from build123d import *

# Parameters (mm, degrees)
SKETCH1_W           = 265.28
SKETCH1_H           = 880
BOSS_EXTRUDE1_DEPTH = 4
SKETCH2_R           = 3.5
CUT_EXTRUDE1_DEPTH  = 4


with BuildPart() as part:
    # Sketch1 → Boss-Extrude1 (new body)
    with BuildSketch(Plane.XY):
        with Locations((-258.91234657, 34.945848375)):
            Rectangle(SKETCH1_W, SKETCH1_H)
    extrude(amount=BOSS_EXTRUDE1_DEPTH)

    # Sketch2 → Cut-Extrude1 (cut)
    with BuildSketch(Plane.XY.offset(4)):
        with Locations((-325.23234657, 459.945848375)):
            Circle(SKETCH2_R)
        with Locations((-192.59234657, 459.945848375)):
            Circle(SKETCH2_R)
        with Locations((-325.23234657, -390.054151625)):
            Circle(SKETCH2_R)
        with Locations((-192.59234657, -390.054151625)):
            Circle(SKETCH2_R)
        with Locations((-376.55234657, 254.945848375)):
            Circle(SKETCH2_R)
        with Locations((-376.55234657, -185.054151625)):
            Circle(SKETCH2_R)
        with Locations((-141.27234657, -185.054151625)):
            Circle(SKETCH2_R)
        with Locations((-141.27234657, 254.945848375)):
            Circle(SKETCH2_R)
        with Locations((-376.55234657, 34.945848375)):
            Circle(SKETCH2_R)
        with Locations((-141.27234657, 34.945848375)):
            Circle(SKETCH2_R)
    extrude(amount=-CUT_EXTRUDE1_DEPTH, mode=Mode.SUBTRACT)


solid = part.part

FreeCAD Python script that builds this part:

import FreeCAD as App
import Part
import Sketcher


def add_polygon(sketch, points):
    """Adds a closed chain of lines whose ends are joined by coincident constraints."""
    first, n = sketch.GeometryCount, len(points)
    for a, b in zip(points, points[1:] + points[:1]):
        sketch.addGeometry(Part.LineSegment(App.Vector(*a, 0), App.Vector(*b, 0)), False)
    for i in range(n):
        sketch.addConstraint(Sketcher.Constraint("Coincident", first + i, 2, first + (i + 1) % n, 1))

doc = App.newDocument("Part")
params = doc.addObject("Spreadsheet::Sheet", "Params")
for row, (alias, value) in enumerate([
    ("sketch1_height", "880 mm"),
    ("sketch1_width", "265.28 mm"),
    ("pad1_length", "4 mm"),
    ("sketch2_diameter", "7 mm"),
    ("pocket1_length", "4 mm"),
], start=1):
    params.set(f"A{row}", alias)
    params.set(f"B{row}", "=" + value)
    params.setAlias(f"B{row}", alias)

body = doc.addObject("PartDesign::Body", "Body")

# Sketch on XY plane
sketch1 = doc.addObject("Sketcher::SketchObject", "Sketch")
body.addObject(sketch1)
sketch1.AttachmentSupport = (doc.XY_Plane, [""])
sketch1.MapMode = "FlatFace"
add_polygon(sketch1, [(-392, 475), (-392, -405), (-126, -405), (-126, 475)])  # lines 0-3
sketch1.addConstraint([
    Sketcher.Constraint("Vertical", 0),
    Sketcher.Constraint("Horizontal", 1),
    Sketcher.Constraint("Vertical", 2),
    Sketcher.Constraint("Horizontal", 3),
    Sketcher.Constraint("DistanceY", 0, 2, 0, 1, 880.0),
    Sketcher.Constraint("DistanceX", 1, 1, 1, 2, 265.28),
    Sketcher.Constraint("DistanceY", 0, 2, -1, 1, 405.054152),
    Sketcher.Constraint("DistanceX", 0, 2, -1, 1, 391.552347),
])
sketch1.setExpression("Constraints[8]", "Params.sketch1_height")
sketch1.setExpression("Constraints[9]", "Params.sketch1_width")
pad1 = doc.addObject("PartDesign::Pad", "Pad")
body.addObject(pad1)
pad1.Profile = sketch1
pad1.setExpression("Length", "Params.pad1_length")

# Sketch on XY plane
sketch2 = doc.addObject("Sketcher::SketchObject", "Sketch001")
body.addObject(sketch2)
sketch2.AttachmentSupport = (doc.XY_Plane, [""])
sketch2.MapMode = "FlatFace"
sketch2.AttachmentOffset = App.Placement(App.Vector(0, 0, 4), App.Rotation())
sketch2.addGeometry([
    Part.Circle(App.Vector(-325.2, 459.9, 0), App.Vector(0, 0, 1), 3.5),  # 0
    Part.Circle(App.Vector(-192.6, 459.9, 0), App.Vector(0, 0, 1), 3.5),  # 1
    Part.Circle(App.Vector(-325.2, -390.1, 0), App.Vector(0, 0, 1), 3.5),  # 2
    Part.Circle(App.Vector(-192.6, -390.1, 0), App.Vector(0, 0, 1), 3.5),  # 3
    Part.Circle(App.Vector(-376.6, 254.9, 0), App.Vector(0, 0, 1), 3.5),  # 4
    Part.Circle(App.Vector(-376.6, -185.1, 0), App.Vector(0, 0, 1), 3.5),  # 5
    Part.Circle(App.Vector(-141.3, -185.1, 0), App.Vector(0, 0, 1), 3.5),  # 6
    Part.Circle(App.Vector(-141.3, 254.9, 0), App.Vector(0, 0, 1), 3.5),  # 7
    Part.Circle(App.Vector(-376.6, 34.9, 0), App.Vector(0, 0, 1), 3.5),  # 8
    Part.Circle(App.Vector(-141.3, 34.9, 0), App.Vector(0, 0, 1), 3.5),  # 9
], False)
sketch2.addConstraint([
    Sketcher.Constraint("Equal", 0, 1),
    Sketcher.Constraint("Equal", 1, 2),
    Sketcher.Constraint("Equal", 2, 3),
    Sketcher.Constraint("Equal", 3, 4),
    Sketcher.Constraint("Equal", 4, 5),
    Sketcher.Constraint("Equal", 5, 6),
    Sketcher.Constraint("Equal", 6, 7),
    Sketcher.Constraint("Equal", 7, 8),
    Sketcher.Constraint("Equal", 8, 9),
    Sketcher.Constraint("Horizontal", 0, 3, 1, 3),
    Sketcher.Constraint("Horizontal", 2, 3, 3, 3),
    Sketcher.Constraint("Horizontal", 5, 3, 6, 3),
    Sketcher.Constraint("Horizontal", 4, 3, 7, 3),
    Sketcher.Constraint("Horizontal", 8, 3, 9, 3),
    Sketcher.Constraint("Vertical", 0, 3, 2, 3),
    Sketcher.Constraint("Vertical", 1, 3, 3, 3),
    Sketcher.Constraint("Vertical", 4, 3, 5, 3),
    Sketcher.Constraint("Vertical", 6, 3, 7, 3),
    Sketcher.Constraint("Vertical", 5, 3, 8, 3),
    Sketcher.Constraint("Vertical", 7, 3, 9, 3),
    Sketcher.Constraint("Diameter", 0, 7.0),
    Sketcher.Constraint("DistanceY", 2, 3, 0, 3, 850.0),
    Sketcher.Constraint("DistanceY", 4, 3, 0, 3, 205.0),
    Sketcher.Constraint("DistanceY", 2, 3, 5, 3, 205.0),
    Sketcher.Constraint("DistanceY", 8, 3, 4, 3, 220.0),
    Sketcher.Constraint("DistanceX", 0, 3, 1, 3, 132.64),
    Sketcher.Constraint("DistanceX", 4, 3, 0, 3, 51.32),
    Sketcher.Constraint("DistanceX", 3, 3, 6, 3, 51.32),
    Sketcher.Constraint("DistanceY", -1, 1, 0, 3, 459.945848),
    Sketcher.Constraint("DistanceX", 0, 3, -1, 1, 325.232347),
])
sketch2.setExpression("Constraints[20]", "Params.sketch2_diameter")
pocket1 = doc.addObject("PartDesign::Pocket", "Pocket")
body.addObject(pocket1)
pocket1.Profile = sketch2
pocket1.setExpression("Length", "Params.pocket1_length")

doc.recompute()
